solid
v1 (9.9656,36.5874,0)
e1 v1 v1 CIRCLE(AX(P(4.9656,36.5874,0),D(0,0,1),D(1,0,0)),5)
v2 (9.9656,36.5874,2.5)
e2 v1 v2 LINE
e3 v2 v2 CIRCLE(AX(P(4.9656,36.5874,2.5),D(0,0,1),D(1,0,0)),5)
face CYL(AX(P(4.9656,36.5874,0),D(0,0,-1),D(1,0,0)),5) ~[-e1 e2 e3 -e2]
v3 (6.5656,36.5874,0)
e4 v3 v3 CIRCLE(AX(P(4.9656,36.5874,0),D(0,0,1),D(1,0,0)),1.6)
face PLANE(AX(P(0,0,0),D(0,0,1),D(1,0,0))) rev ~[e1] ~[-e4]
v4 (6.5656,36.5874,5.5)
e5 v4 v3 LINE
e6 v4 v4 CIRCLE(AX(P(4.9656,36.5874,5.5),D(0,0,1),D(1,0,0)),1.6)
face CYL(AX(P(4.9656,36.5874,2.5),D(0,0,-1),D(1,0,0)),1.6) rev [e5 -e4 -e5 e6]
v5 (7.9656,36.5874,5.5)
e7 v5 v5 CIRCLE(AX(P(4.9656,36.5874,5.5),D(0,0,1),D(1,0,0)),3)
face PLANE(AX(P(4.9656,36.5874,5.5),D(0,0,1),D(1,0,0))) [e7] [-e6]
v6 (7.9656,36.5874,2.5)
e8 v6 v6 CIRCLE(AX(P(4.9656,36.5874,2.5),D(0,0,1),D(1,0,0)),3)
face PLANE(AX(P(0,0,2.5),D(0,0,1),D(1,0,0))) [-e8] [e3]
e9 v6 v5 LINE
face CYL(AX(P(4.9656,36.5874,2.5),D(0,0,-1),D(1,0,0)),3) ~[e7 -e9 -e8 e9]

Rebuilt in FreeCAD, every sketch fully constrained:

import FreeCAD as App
import Part
import Sketcher
Q = App.Units.Quantity

doc = App.newDocument("Part")
body = doc.addObject("PartDesign::Body", "Body")

sketch1 = doc.addObject("Sketcher::SketchObject", "Sketch")
body.addObject(sketch1)
sketch1.AttachmentSupport = (doc.XY_Plane, [""])
sketch1.MapMode = "FlatFace"
sketch1.addGeometry(Part.Circle(App.Vector(5, 36.6, 0), App.Vector(0, 0, 1), 5), False)
sketch1.addGeometry(Part.Circle(App.Vector(5, 36.6, 0), App.Vector(0, 0, 1), 1.6), False)
sketch1.addConstraint(Sketcher.Constraint("Coincident", 1, 3, 0, 3))
sketch1.addConstraint(Sketcher.Constraint("Diameter", 0, Q("10 mm")))
sketch1.addConstraint(Sketcher.Constraint("Diameter", 1, Q("3.2 mm")))
sketch1.addConstraint(Sketcher.Constraint("DistanceX", -1, 1, 0, 3, Q("4.9656 mm")))
sketch1.addConstraint(Sketcher.Constraint("DistanceY", -1, 1, 0, 3, Q("36.5874 mm")))
pad1 = doc.addObject("PartDesign::Pad", "Pad")
body.addObject(pad1)
pad1.Profile = sketch1
pad1.Length = 2.5

sketch2 = doc.addObject("Sketcher::SketchObject", "Sketch001")
body.addObject(sketch2)
sketch2.AttachmentSupport = (doc.XY_Plane, [""])
sketch2.MapMode = "FlatFace"
sketch2.AttachmentOffset = App.Placement(App.Vector(0, 0, 2.5), App.Rotation())
sketch2.addGeometry(Part.Circle(App.Vector(5, 36.6, 0), App.Vector(0, 0, 1), 3), False)
sketch2.addGeometry(Part.Circle(App.Vector(5, 36.6, 0), App.Vector(0, 0, 1), 1.6), False)
sketch2.addConstraint(Sketcher.Constraint("Coincident", 1, 3, 0, 3))
sketch2.addConstraint(Sketcher.Constraint("Diameter", 0, Q("6 mm")))
sketch2.addConstraint(Sketcher.Constraint("Diameter", 1, Q("3.2 mm")))
sketch2.addConstraint(Sketcher.Constraint("DistanceX", -1, 1, 0, 3, Q("4.9656 mm")))
sketch2.addConstraint(Sketcher.Constraint("DistanceY", -1, 1, 0, 3, Q("36.5874 mm")))
pad2 = doc.addObject("PartDesign::Pad", "Pad001")
body.addObject(pad2)
pad2.Profile = sketch2
pad2.Length = 3

doc.recompute()
